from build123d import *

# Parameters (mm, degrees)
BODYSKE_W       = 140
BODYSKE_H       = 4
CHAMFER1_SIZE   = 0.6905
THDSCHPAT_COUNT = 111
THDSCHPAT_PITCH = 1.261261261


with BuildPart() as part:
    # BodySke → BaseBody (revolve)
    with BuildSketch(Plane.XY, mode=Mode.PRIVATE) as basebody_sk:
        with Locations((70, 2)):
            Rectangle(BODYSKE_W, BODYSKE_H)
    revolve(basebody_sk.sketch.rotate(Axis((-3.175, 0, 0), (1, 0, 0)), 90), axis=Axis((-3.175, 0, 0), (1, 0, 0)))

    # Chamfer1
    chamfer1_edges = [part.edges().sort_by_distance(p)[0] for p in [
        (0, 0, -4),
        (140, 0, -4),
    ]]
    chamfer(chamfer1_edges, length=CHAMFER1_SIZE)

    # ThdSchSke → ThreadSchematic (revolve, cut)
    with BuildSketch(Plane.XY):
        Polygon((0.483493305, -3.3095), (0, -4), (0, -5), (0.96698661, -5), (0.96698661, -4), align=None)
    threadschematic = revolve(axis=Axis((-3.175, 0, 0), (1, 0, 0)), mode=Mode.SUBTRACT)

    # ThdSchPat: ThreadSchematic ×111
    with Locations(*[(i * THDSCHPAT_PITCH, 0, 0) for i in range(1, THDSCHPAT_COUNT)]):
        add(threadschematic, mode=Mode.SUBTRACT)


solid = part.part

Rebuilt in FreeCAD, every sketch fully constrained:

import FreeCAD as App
import Part
import Sketcher
from FreeCAD import Vector
Q = App.Units.Quantity


def edges_at(feature, points):
    """Names of the edges that pass closest to the given points."""
    edges = feature.Shape.Edges
    near = lambda p: min(range(len(edges)), key=lambda i: edges[i].distToShape(Part.Vertex(*p))[0])
    return sorted({f"Edge{near(p) + 1}" for p in points})

doc = App.newDocument("Part")
body = doc.addObject("PartDesign::Body", "Body")

sketch1 = body.newObject("Sketcher::SketchObject", "Sketch")
sketch1.AttachmentSupport = (doc.getObject("XY_Plane"), [""])
sketch1.MapMode = "FlatFace"
sketch1.addGeometry([
    Part.LineSegment(Vector(0, 4, 0), Vector(0, 0, 0)),
    Part.LineSegment(Vector(0, 0, 0), Vector(140, 0, 0)),
    Part.LineSegment(Vector(140, 0, 0), Vector(140, 4, 0)),
    Part.LineSegment(Vector(140, 4, 0), Vector(0, 4, 0)),
], False)
sketch1.addConstraint([
    Sketcher.Constraint("Coincident", 0, 2, 1, 1),
    Sketcher.Constraint("Coincident", 1, 2, 2, 1),
    Sketcher.Constraint("Coincident", 2, 2, 3, 1),
    Sketcher.Constraint("Coincident", 3, 2, 0, 1),
    Sketcher.Constraint("Vertical", 0),
    Sketcher.Constraint("Horizontal", 1),
    Sketcher.Constraint("Vertical", 2),
    Sketcher.Constraint("Horizontal", 3),
    Sketcher.Constraint("Coincident", 0, 2, -1, 1),
    Sketcher.Constraint("DistanceX", 1, 1, 1, 2, 140.0),
    Sketcher.Constraint("DistanceY", 0, 2, 0, 1, 4.0),
])
revolution = body.newObject("PartDesign::Revolution", "Revolution")
revolution.Profile = sketch1
revolution.ReferenceAxis = (sketch1, ["H_Axis"])
revolution.Angle = 360
doc.recompute()

chamfer = body.newObject("PartDesign::Chamfer", "Chamfer")
chamfer.Base = (revolution, edges_at(revolution, [(0, 0, -4), (140, 0, -4)]))
chamfer.Size = 0.6905

sketch2 = body.newObject("Sketcher::SketchObject", "Sketch001")
sketch2.AttachmentSupport = (doc.getObject("XY_Plane"), [""])
sketch2.MapMode = "FlatFace"
sketch2.addGeometry([
    Part.LineSegment(Vector(0.5, -3.3, 0), Vector(0, -4, 0)),
    Part.LineSegment(Vector(0, -4, 0), Vector(0, -5, 0)),
    Part.LineSegment(Vector(0, -5, 0), Vector(1, -5, 0)),
    Part.LineSegment(Vector(1, -5, 0), Vector(1, -4, 0)),
    Part.LineSegment(Vector(1, -4, 0), Vector(0.5, -3.3, 0)),
], False)
sketch2.addConstraint([
    Sketcher.Constraint("Coincident", 0, 2, 1, 1),
    Sketcher.Constraint("Coincident", 1, 2, 2, 1),
    Sketcher.Constraint("Coincident", 2, 2, 3, 1),
    Sketcher.Constraint("Coincident", 3, 2, 4, 1),
    Sketcher.Constraint("Coincident", 4, 2, 0, 1),
    Sketcher.Constraint("Vertical", 1),
    Sketcher.Constraint("Horizontal", 2),
    Sketcher.Constraint("Vertical", 3),
    Sketcher.Constraint("PointOnObject", 0, 2, -2),
    Sketcher.Constraint("Horizontal", 0, 2, 3, 2),
    Sketcher.Constraint("Equal", 0, 4),
    Sketcher.Constraint("DistanceY", 1, 2, 1, 1, 1.0),
    Sketcher.Constraint("Angle", 0, Q("-125 deg")),
    Sketcher.Constraint("DistanceY", 0, 2, -1, 1, 4.0),
    Sketcher.Constraint("DistanceY", 4, 2, -1, 1, 3.3095),
])
groove = body.newObject("PartDesign::Groove", "Groove")
groove.Profile = sketch2
groove.ReferenceAxis = (sketch2, ["H_Axis"])
groove.Angle = 360
doc.recompute()

linearpattern = body.newObject("PartDesign::LinearPattern", "LinearPattern")
linearpattern.Originals = [groove]
linearpattern.Direction = (doc.getObject("X_Axis"), [""])
linearpattern.Mode = "offset"
linearpattern.Offset = 1.261261
linearpattern.Occurrences = 111
body.Tip = linearpattern

doc.recompute()
